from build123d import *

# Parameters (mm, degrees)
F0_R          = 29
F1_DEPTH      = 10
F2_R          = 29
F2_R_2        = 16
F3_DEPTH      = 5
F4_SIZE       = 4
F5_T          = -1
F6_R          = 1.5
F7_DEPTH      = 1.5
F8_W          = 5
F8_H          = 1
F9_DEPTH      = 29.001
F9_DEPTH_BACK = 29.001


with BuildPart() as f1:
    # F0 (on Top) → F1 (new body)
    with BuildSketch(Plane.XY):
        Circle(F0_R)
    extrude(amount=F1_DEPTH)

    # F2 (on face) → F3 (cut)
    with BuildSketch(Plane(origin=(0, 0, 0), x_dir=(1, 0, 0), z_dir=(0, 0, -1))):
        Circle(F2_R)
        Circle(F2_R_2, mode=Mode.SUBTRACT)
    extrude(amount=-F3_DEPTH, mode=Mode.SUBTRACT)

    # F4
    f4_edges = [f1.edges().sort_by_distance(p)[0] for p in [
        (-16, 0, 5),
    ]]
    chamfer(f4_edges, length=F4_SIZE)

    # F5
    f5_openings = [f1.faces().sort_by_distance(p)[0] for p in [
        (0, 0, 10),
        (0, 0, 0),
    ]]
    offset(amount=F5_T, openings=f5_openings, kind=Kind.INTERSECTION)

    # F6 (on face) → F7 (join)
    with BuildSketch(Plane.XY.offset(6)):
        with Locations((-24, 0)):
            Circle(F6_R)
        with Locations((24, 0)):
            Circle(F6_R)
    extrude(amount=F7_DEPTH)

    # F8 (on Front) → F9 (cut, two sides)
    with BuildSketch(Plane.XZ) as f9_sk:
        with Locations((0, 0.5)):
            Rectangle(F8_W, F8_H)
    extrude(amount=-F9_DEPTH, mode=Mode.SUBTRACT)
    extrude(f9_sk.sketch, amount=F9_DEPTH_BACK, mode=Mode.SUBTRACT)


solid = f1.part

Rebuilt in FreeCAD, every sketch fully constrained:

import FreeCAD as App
import Part
import Sketcher
from FreeCAD import Vector


def edges_at(feature, points):
    """Names of the edges that pass closest to the given points."""
    edges = feature.Shape.Edges
    near = lambda p: min(range(len(edges)), key=lambda i: edges[i].distToShape(Part.Vertex(*p))[0])
    return sorted({f"Edge{near(p) + 1}" for p in points})


def faces_at(feature, points):
    """Names of the faces that lie closest to the given points."""
    faces = feature.Shape.Faces
    near = lambda p: min(range(len(faces)), key=lambda i: faces[i].distToShape(Part.Vertex(*p))[0])
    return sorted({f"Face{near(p) + 1}" for p in points})


def add_polygon(sketch, points):
    """Adds a closed chain of lines whose ends are joined by coincident constraints."""
    first, n = sketch.GeometryCount, len(points)
    for a, b in zip(points, points[1:] + points[:1]):
        sketch.addGeometry(Part.LineSegment(App.Vector(*a, 0), App.Vector(*b, 0)), False)
    for i in range(n):
        sketch.addConstraint(Sketcher.Constraint("Coincident", first + i, 2, first + (i + 1) % n, 1))

doc = App.newDocument("Part")
body = doc.addObject("PartDesign::Body", "Body")

sketch1 = body.newObject("Sketcher::SketchObject", "Sketch")
sketch1.AttachmentSupport = (doc.getObject("XY_Plane"), [""])
sketch1.MapMode = "FlatFace"
sketch1.addGeometry(Part.Circle(Vector(0, 0, 0), Vector(0, 0, 1), 29), False)
sketch1.addConstraint(Sketcher.Constraint("Coincident", 0, 3, -1, 1))
sketch1.addConstraint(Sketcher.Constraint("Diameter", 0, 58.0))
pad1 = body.newObject("PartDesign::Pad", "Pad")
pad1.Profile = sketch1
pad1.Length = 10

sketch2 = body.newObject("Sketcher::SketchObject", "Sketch001")
sketch2.AttachmentSupport = (doc.getObject("XY_Plane"), [""])
sketch2.MapMode = "FlatFace"
sketch2.addGeometry(Part.Circle(Vector(0, 0, 0), Vector(0, 0, 1), 29), False)
sketch2.addGeometry(Part.Circle(Vector(0, 0, 0), Vector(0, 0, 1), 16), False)
sketch2.addConstraint(Sketcher.Constraint("Coincident", 0, 3, -1, 1))
sketch2.addConstraint(Sketcher.Constraint("Coincident", 1, 3, -1, 1))
sketch2.addConstraint(Sketcher.Constraint("Diameter", 0, 58.0))
sketch2.addConstraint(Sketcher.Constraint("Diameter", 1, 32.0))
pocket1 = body.newObject("PartDesign::Pocket", "Pocket")
pocket1.Profile = sketch2
pocket1.Length = 5
pocket1.Reversed = True
doc.recompute()

chamfer = body.newObject("PartDesign::Chamfer", "Chamfer")
chamfer.Base = (pocket1, edges_at(pocket1, [(-16, 0, 5)]))
chamfer.Size = 4
doc.recompute()

thickness = body.newObject("PartDesign::Thickness", "Thickness")
thickness.Base = (chamfer, faces_at(chamfer, [(0, 0, 10), (0, 0, 0)]))
thickness.Value = 1
thickness.Reversed = True
thickness.Join = "Intersection"

sketch3 = body.newObject("Sketcher::SketchObject", "Sketch002")
sketch3.AttachmentSupport = (doc.getObject("XY_Plane"), [""])
sketch3.MapMode = "FlatFace"
sketch3.AttachmentOffset = App.Placement(Vector(0, 0, 6), App.Rotation())
sketch3.addGeometry(Part.Circle(Vector(-24, 0, 0), Vector(0, 0, 1), 1.5), False)
sketch3.addGeometry(Part.Circle(Vector(24, 0, 0), Vector(0, 0, 1), 1.5), False)
sketch3.addConstraint(Sketcher.Constraint("Equal", 0, 1))
sketch3.addConstraint(Sketcher.Constraint("Symmetric", 0, 3, 1, 3, -1, 1))
sketch3.addConstraint(Sketcher.Constraint("PointOnObject", 0, 3, -1))
sketch3.addConstraint(Sketcher.Constraint("Diameter", 0, 3.0))
sketch3.addConstraint(Sketcher.Constraint("DistanceX", 0, 3, -1, 1, 24.0))
pad2 = body.newObject("PartDesign::Pad", "Pad001")
pad2.Profile = sketch3
pad2.Length = 1.5

sketch4 = body.newObject("Sketcher::SketchObject", "Sketch003")
sketch4.AttachmentSupport = (doc.getObject("XZ_Plane"), [""])
sketch4.MapMode = "FlatFace"
add_polygon(sketch4, [(-2.5, 1), (-2.5, 0), (2.5, 0), (2.5, 1)])
sketch4.addConstraint(Sketcher.Constraint("Vertical", 0))
sketch4.addConstraint(Sketcher.Constraint("Horizontal", 1))
sketch4.addConstraint(Sketcher.Constraint("Vertical", 2))
sketch4.addConstraint(Sketcher.Constraint("Horizontal", 3))
sketch4.addConstraint(Sketcher.Constraint("Symmetric", 0, 2, 1, 2, -1, 1))
sketch4.addConstraint(Sketcher.Constraint("DistanceX", 1, 1, 1, 2, 5.0))
sketch4.addConstraint(Sketcher.Constraint("DistanceY", 0, 2, 0, 1, 1.0))
pocket2 = body.newObject("PartDesign::Pocket", "Pocket001")
pocket2.Profile = sketch4
pocket2.Type = "ThroughAll"
pocket2.Midplane = True

doc.recompute()
